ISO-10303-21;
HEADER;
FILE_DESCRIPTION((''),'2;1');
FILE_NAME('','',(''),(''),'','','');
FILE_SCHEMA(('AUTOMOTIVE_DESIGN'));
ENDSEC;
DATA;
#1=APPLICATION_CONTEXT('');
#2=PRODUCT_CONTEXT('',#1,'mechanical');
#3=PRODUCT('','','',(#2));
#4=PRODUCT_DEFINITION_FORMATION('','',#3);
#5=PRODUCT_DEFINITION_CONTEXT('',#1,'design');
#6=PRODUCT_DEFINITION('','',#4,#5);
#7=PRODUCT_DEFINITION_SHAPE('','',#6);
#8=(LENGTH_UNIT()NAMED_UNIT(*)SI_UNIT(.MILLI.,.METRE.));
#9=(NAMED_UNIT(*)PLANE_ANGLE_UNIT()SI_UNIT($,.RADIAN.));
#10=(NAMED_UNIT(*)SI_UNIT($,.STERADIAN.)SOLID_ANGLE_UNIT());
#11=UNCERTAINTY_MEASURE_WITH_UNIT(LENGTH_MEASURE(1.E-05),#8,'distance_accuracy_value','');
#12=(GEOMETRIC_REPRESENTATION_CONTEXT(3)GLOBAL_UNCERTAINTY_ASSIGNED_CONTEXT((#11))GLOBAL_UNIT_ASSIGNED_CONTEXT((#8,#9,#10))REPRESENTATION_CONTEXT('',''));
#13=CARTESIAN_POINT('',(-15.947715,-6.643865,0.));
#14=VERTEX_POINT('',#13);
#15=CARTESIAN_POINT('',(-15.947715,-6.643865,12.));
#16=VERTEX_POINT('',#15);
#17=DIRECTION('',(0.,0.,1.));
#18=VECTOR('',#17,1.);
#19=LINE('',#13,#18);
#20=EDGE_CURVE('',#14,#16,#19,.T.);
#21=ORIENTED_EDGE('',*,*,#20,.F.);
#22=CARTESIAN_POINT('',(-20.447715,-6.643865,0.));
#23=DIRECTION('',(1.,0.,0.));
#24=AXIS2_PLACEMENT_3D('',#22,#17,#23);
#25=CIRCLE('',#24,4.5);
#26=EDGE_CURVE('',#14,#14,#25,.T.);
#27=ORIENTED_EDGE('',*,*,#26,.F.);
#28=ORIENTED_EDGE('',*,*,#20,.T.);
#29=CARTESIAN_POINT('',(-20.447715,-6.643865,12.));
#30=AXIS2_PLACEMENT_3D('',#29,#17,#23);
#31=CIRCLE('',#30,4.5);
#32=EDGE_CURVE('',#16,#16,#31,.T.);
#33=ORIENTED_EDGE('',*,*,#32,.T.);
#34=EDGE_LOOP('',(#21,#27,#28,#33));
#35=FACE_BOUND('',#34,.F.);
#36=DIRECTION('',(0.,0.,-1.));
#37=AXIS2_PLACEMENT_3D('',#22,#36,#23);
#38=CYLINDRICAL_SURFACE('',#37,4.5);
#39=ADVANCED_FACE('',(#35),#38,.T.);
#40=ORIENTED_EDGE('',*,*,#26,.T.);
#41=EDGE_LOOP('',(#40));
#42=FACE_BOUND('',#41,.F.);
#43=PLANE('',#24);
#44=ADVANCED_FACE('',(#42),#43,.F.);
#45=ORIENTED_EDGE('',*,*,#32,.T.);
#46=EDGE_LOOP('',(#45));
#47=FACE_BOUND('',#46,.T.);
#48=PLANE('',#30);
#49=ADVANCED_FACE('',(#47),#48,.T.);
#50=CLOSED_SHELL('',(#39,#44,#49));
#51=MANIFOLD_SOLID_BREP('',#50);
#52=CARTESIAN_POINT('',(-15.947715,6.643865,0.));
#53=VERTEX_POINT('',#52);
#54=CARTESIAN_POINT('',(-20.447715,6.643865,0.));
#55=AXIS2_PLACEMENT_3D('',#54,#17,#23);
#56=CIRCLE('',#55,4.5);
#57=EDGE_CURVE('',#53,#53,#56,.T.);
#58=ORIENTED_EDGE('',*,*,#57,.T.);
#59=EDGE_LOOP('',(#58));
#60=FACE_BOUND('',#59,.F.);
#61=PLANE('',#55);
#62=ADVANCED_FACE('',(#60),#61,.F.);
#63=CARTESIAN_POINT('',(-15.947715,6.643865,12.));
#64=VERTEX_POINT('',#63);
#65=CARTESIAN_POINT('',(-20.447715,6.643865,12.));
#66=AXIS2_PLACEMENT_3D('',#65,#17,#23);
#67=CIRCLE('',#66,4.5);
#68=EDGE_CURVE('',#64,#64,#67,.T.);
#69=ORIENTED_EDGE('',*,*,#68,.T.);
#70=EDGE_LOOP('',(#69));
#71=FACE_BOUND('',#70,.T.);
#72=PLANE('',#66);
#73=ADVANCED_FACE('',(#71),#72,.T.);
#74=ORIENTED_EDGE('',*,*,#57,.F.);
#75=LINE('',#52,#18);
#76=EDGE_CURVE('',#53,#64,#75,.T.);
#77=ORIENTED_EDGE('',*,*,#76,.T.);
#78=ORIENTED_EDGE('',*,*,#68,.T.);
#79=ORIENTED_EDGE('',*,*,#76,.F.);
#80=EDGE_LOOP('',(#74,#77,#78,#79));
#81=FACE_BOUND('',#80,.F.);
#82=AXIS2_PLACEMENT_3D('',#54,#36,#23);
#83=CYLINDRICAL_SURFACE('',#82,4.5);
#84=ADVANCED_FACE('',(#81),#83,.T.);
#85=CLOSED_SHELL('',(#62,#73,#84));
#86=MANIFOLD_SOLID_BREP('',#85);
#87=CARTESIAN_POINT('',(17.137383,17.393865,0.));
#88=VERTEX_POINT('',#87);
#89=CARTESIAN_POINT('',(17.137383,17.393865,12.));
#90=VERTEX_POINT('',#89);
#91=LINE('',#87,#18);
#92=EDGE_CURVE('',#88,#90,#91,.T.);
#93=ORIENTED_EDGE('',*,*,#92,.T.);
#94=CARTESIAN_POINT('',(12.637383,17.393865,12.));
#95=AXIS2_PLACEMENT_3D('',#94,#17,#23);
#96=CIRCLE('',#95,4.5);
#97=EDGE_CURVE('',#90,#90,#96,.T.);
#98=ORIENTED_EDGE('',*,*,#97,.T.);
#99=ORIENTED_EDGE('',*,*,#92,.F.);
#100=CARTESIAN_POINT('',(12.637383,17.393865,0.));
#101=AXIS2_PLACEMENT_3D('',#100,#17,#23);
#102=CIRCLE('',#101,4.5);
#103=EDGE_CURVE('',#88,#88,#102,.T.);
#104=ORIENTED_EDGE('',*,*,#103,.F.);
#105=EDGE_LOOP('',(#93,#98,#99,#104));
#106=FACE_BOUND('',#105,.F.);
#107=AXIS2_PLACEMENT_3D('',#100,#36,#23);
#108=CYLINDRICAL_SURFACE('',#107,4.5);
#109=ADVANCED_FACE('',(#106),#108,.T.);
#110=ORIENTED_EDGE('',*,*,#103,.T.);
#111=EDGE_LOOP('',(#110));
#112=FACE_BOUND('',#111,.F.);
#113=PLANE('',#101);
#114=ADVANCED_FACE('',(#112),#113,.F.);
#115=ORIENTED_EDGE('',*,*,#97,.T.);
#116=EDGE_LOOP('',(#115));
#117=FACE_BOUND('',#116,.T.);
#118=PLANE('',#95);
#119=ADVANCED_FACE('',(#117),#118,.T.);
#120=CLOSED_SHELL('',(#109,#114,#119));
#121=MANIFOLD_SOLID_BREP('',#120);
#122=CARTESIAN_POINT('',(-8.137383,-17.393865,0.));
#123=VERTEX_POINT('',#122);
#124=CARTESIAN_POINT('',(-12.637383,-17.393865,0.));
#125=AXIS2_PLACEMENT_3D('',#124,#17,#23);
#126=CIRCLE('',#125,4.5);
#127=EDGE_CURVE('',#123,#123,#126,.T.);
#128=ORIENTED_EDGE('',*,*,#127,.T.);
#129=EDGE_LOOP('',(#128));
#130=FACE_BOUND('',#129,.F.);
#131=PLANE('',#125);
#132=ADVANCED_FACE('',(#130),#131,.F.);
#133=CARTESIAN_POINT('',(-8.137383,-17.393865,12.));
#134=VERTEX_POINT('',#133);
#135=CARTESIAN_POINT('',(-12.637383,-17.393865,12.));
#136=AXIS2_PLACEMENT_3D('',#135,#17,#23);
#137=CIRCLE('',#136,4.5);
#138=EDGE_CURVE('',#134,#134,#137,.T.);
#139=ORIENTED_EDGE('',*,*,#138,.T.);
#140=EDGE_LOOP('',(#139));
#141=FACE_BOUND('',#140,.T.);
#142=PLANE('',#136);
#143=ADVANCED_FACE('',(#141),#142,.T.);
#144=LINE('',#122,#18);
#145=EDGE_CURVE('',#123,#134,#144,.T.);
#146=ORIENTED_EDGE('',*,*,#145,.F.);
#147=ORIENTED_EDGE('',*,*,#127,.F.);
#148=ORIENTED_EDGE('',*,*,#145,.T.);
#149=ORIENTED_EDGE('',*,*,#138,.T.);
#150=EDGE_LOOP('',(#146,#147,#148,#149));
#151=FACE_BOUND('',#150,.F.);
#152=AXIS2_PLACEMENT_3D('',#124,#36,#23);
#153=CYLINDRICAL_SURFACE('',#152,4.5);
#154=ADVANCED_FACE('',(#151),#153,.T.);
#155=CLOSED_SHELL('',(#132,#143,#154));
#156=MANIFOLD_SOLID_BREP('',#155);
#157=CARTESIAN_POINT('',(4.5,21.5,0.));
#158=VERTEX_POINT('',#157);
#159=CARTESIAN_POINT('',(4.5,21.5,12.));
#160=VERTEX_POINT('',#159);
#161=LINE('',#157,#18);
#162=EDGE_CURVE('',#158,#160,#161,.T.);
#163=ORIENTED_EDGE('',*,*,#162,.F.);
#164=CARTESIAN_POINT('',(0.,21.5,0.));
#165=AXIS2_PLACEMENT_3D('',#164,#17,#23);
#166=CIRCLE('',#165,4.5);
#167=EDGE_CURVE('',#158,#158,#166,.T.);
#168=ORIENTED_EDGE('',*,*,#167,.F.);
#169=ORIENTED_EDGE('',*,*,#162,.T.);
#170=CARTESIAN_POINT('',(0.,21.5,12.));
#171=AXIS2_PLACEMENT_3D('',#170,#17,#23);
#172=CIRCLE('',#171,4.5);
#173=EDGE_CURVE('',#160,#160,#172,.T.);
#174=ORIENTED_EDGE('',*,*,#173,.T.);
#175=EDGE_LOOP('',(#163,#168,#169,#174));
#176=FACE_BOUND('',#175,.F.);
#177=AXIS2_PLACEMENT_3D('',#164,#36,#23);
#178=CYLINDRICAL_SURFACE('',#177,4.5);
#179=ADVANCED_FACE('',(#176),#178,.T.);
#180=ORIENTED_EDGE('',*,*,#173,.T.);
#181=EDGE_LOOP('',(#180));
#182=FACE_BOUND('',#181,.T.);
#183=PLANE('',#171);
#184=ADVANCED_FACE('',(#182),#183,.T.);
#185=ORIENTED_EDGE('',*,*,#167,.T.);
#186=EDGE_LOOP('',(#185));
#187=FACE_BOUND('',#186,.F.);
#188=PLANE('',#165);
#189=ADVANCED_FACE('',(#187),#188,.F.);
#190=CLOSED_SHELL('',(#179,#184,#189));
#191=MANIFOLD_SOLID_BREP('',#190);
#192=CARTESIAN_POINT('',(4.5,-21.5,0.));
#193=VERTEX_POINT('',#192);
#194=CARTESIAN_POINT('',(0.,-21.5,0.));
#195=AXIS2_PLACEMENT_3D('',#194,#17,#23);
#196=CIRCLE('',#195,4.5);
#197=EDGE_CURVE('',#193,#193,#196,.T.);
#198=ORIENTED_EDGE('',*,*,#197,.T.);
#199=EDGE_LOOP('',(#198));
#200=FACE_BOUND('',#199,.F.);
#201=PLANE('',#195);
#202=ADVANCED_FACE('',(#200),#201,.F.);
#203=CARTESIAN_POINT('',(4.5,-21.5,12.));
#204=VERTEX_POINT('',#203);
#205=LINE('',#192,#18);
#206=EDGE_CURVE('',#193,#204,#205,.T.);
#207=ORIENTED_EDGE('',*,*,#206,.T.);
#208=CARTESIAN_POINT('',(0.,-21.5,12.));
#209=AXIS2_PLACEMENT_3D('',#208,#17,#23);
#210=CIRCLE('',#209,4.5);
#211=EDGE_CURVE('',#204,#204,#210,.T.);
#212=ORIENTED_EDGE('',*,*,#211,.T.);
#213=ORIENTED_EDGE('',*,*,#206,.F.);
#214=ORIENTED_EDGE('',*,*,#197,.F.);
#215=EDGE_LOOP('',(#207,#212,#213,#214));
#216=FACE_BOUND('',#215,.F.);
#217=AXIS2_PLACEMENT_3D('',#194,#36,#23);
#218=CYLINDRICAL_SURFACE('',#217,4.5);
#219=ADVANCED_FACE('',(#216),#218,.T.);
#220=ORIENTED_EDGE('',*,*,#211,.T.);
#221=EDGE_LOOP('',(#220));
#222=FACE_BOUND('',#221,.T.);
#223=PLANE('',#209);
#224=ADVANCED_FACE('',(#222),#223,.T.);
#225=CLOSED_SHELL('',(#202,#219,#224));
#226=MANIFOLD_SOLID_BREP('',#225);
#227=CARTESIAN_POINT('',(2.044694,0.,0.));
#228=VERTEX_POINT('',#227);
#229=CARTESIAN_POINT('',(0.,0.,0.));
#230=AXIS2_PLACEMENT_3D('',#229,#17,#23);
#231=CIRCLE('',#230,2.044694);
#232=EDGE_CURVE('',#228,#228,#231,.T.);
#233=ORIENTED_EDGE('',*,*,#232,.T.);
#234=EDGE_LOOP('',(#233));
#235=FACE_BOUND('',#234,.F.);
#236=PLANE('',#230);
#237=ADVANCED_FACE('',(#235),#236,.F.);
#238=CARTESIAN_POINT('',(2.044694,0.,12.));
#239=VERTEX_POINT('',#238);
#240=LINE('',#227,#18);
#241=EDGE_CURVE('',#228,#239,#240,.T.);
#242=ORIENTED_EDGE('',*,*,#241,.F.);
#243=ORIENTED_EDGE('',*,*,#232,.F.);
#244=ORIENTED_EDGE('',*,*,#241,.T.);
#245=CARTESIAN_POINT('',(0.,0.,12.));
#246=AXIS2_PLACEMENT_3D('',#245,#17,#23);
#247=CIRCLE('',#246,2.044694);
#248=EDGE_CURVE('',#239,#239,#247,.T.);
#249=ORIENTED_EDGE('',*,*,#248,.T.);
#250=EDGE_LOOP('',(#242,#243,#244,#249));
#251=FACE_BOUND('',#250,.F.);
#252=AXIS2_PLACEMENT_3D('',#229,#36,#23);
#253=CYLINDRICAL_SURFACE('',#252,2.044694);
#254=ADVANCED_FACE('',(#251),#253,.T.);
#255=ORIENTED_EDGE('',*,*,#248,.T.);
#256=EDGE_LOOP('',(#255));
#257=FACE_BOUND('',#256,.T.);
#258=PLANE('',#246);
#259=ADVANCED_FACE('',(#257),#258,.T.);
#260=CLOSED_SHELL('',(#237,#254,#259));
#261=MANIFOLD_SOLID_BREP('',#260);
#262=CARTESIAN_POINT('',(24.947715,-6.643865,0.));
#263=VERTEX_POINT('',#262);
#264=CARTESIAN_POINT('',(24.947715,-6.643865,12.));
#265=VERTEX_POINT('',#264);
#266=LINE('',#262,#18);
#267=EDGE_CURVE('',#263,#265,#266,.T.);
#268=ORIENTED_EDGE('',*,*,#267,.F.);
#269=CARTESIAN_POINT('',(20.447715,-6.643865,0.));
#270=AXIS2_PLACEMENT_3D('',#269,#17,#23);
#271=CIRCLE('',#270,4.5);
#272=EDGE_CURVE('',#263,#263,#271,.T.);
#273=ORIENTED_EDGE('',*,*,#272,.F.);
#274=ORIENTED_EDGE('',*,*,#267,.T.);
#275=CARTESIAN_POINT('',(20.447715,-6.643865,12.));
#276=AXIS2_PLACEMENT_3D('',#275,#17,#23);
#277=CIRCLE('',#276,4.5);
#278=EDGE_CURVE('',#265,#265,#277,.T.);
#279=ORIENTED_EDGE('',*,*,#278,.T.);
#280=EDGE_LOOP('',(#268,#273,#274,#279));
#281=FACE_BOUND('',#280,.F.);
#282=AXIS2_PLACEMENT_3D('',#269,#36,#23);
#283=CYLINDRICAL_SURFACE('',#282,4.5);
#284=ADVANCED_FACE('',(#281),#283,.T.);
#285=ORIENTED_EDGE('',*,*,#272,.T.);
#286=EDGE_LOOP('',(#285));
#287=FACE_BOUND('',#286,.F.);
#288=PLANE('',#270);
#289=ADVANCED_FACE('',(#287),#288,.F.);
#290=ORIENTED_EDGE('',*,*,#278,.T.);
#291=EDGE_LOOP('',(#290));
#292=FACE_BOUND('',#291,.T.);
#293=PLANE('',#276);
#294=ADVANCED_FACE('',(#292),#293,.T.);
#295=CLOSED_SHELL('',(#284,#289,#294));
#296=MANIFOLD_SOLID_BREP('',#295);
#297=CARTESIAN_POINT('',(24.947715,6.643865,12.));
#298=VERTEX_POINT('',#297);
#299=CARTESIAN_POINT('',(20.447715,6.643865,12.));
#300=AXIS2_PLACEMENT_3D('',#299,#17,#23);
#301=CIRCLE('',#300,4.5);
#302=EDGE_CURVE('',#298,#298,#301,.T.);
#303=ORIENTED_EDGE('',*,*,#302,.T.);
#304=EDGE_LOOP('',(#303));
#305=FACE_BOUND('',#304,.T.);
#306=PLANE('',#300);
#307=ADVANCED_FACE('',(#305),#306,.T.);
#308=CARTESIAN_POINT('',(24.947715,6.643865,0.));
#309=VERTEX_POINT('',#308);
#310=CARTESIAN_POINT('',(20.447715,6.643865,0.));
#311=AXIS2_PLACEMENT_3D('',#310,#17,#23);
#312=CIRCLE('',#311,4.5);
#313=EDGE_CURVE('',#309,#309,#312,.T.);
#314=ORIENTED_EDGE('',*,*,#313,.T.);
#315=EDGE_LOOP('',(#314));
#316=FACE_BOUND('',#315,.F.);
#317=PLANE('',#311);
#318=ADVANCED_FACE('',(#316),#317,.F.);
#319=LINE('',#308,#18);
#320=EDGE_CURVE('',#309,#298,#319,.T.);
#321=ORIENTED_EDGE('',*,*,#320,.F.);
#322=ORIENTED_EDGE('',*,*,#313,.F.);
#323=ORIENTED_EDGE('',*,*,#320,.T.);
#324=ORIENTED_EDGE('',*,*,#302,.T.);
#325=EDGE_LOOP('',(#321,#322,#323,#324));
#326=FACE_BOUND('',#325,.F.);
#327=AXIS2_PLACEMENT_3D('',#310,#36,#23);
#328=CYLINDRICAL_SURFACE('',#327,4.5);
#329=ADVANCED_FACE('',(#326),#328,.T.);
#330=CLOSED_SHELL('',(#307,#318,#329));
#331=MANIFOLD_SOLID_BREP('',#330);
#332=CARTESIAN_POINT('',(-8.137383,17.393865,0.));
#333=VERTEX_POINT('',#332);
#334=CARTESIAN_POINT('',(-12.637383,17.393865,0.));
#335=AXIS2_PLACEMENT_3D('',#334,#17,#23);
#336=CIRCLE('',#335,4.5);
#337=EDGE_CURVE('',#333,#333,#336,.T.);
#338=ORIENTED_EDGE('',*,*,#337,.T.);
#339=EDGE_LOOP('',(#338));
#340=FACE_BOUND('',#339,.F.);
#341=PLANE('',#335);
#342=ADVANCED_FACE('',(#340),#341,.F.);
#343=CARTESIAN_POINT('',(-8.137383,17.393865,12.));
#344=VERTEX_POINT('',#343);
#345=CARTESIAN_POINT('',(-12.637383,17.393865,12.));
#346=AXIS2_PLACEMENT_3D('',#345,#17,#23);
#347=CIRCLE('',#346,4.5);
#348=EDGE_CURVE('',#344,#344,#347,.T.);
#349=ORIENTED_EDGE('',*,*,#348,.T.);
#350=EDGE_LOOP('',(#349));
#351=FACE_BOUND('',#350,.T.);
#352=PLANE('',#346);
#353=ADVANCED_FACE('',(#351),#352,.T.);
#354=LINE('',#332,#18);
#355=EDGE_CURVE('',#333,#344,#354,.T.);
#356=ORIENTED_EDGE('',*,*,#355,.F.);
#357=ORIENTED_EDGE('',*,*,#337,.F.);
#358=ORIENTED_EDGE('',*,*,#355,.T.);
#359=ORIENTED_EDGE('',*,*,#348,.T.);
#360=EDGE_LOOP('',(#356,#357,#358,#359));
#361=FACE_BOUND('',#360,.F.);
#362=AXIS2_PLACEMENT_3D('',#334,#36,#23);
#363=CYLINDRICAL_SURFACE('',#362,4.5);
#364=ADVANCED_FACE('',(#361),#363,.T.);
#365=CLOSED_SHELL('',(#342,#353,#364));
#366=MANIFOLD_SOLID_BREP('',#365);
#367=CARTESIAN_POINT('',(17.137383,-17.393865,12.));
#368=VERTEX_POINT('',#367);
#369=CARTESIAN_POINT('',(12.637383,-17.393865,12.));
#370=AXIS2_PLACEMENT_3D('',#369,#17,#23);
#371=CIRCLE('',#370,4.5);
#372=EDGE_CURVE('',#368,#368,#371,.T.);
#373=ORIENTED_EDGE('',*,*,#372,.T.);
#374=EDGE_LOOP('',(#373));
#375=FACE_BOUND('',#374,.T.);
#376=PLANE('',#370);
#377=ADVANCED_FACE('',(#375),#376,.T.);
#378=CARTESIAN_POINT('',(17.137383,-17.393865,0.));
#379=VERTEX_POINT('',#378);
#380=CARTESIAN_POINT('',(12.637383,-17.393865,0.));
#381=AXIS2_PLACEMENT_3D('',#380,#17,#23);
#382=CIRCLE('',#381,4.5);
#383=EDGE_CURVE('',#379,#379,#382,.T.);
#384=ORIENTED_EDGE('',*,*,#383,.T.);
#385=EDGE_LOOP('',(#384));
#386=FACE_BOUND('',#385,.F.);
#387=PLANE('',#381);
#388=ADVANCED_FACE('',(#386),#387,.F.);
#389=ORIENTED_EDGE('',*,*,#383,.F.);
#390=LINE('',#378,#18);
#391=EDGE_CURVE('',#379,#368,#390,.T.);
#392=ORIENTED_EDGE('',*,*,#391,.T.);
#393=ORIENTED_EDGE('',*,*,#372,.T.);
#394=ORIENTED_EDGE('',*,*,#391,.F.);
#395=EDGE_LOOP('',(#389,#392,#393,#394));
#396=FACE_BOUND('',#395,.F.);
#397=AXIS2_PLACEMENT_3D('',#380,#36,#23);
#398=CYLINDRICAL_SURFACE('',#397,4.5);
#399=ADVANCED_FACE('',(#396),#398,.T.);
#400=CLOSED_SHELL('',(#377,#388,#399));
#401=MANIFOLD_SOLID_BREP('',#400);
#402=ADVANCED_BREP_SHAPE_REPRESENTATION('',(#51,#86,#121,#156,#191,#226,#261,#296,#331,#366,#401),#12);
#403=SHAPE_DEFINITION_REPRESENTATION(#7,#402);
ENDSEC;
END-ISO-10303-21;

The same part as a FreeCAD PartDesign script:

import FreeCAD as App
import Part
import Sketcher

V = App.Vector
Q = App.Units.Quantity

doc = App.newDocument("Part")
body = doc.addObject("PartDesign::Body", "Body")
body.AllowCompound = True

# Sketch on XY plane
sketch1 = body.newObject("Sketcher::SketchObject", "Sketch")
sketch1.AttachmentSupport = (doc.getObject("XY_Plane"), [""])
sketch1.MapMode = "FlatFace"
sketch1.addGeometry([
    Part.Circle(V(12.6, -17.4, 0), V(0, 0, 1), 4.5),  # 0
    Part.Circle(V(20.4, -6.6, 0), V(0, 0, 1), 4.5),  # 1
    Part.Circle(V(0, -21.5, 0), V(0, 0, 1), 4.5),  # 2
    Part.Circle(V(20.4, 6.6, 0), V(0, 0, 1), 4.5),  # 3
    Part.Circle(V(12.6, 17.4, 0), V(0, 0, 1), 4.5),  # 4
    Part.Circle(V(-12.6, -17.4, 0), V(0, 0, 1), 4.5),  # 5
    Part.Circle(V(-20.4, -6.6, 0), V(0, 0, 1), 4.5),  # 6
    Part.Circle(V(-20.4, 6.6, 0), V(0, 0, 1), 4.5),  # 7
    Part.Circle(V(-12.6, 17.4, 0), V(0, 0, 1), 4.5),  # 8
    Part.Circle(V(0, 21.5, 0), V(0, 0, 1), 4.5),  # 9
    Part.Circle(V(0, 0, 0), V(0, 0, 1), 2),  # 10
], False)
sketch1.addConstraint([
    Sketcher.Constraint("Coincident", 10, 3, -1, 1),
    Sketcher.Constraint("Equal", 0, 1),
    Sketcher.Constraint("Equal", 1, 2),
    Sketcher.Constraint("Equal", 2, 3),
    Sketcher.Constraint("Equal", 3, 4),
    Sketcher.Constraint("Equal", 4, 5),
    Sketcher.Constraint("Equal", 5, 6),
    Sketcher.Constraint("Equal", 6, 7),
    Sketcher.Constraint("Equal", 7, 8),
    Sketcher.Constraint("Equal", 8, 9),
    Sketcher.Constraint("Symmetric", 4, 3, 5, 3, -1, 1),
    Sketcher.Constraint("Symmetric", 3, 3, 6, 3, -1, 1),
    Sketcher.Constraint("Symmetric", 1, 3, 7, 3, -1, 1),
    Sketcher.Constraint("Symmetric", 0, 3, 8, 3, -1, 1),
    Sketcher.Constraint("Symmetric", 2, 3, 9, 3, -1, 1),
    Sketcher.Constraint("Symmetric", 0, 3, 5, 3, -2),
    Sketcher.Constraint("Symmetric", 1, 3, 6, 3, -2),
    Sketcher.Constraint("PointOnObject", 2, 3, -2),
    Sketcher.Constraint("Diameter", 0, Q("9 mm")),
    Sketcher.Constraint("DistanceY", 2, 3, -1, 1, Q("21.5 mm")),
    Sketcher.Constraint("DistanceY", 0, 3, 1, 3, Q("10.75 mm")),
    Sketcher.Constraint("Diameter", 10, Q("4.089388 mm")),
    Sketcher.Constraint("DistanceX", 5, 3, 1, 3, Q("33.085098 mm")),
    Sketcher.Constraint("DistanceX", 0, 3, 1, 3, Q("7.810332 mm")),
    Sketcher.Constraint("DistanceY", 1, 3, 3, 3, Q("13.28773 mm")),
])
pad1 = body.newObject("PartDesign::Pad", "Pad")
pad1.Profile = sketch1
pad1.Length = 12

doc.recompute()
